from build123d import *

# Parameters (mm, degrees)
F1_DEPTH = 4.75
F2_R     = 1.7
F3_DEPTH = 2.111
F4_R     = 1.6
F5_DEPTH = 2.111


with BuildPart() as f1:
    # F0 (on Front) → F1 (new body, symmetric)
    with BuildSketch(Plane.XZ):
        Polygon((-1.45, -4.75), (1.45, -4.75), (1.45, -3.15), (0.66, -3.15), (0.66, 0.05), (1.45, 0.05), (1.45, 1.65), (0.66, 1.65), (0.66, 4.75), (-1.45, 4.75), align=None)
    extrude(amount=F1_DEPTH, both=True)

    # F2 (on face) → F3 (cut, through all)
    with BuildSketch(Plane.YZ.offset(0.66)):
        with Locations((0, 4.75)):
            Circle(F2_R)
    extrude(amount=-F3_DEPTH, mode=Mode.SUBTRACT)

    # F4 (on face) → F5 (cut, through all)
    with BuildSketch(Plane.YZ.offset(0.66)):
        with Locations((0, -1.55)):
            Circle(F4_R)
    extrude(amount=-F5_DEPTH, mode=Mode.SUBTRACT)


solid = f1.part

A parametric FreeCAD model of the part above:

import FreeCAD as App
import Part
import Sketcher
from FreeCAD import Vector

doc = App.newDocument("Part")
body = doc.addObject("PartDesign::Body", "Body")

sketch1 = body.newObject("Sketcher::SketchObject", "Sketch")
sketch1.AttachmentSupport = (doc.getObject("XZ_Plane"), [""])
sketch1.MapMode = "FlatFace"
sketch1.addGeometry(Part.LineSegment(Vector(-1.4, -4.8, 0), Vector(1.4, -4.8, 0)), False)
sketch1.addGeometry(Part.LineSegment(Vector(1.4, -4.8, 0), Vector(1.4, -3.1, 0)), False)
sketch1.addGeometry(Part.LineSegment(Vector(1.4, -3.1, 0), Vector(0.7, -3.1, 0)), False)
sketch1.addGeometry(Part.LineSegment(Vector(0.7, -3.1, 0), Vector(0.7, 0.1, 0)), False)
sketch1.addGeometry(Part.LineSegment(Vector(0.7, 0.1, 0), Vector(1.4, 0.1, 0)), False)
sketch1.addGeometry(Part.LineSegment(Vector(1.4, 0.1, 0), Vector(1.4, 1.6, 0)), False)
sketch1.addGeometry(Part.LineSegment(Vector(1.4, 1.6, 0), Vector(0.7, 1.6, 0)), False)
sketch1.addGeometry(Part.LineSegment(Vector(0.7, 1.6, 0), Vector(0.7, 4.8, 0)), False)
sketch1.addGeometry(Part.LineSegment(Vector(0.7, 4.8, 0), Vector(-1.4, 4.8, 0)), False)
sketch1.addGeometry(Part.LineSegment(Vector(-1.4, 4.8, 0), Vector(-1.4, -4.8, 0)), False)
sketch1.addConstraint(Sketcher.Constraint("Coincident", 0, 2, 1, 1))
sketch1.addConstraint(Sketcher.Constraint("Coincident", 1, 2, 2, 1))
sketch1.addConstraint(Sketcher.Constraint("Coincident", 2, 2, 3, 1))
sketch1.addConstraint(Sketcher.Constraint("Coincident", 3, 2, 4, 1))
sketch1.addConstraint(Sketcher.Constraint("Coincident", 4, 2, 5, 1))
sketch1.addConstraint(Sketcher.Constraint("Coincident", 5, 2, 6, 1))
sketch1.addConstraint(Sketcher.Constraint("Coincident", 6, 2, 7, 1))
sketch1.addConstraint(Sketcher.Constraint("Coincident", 7, 2, 8, 1))
sketch1.addConstraint(Sketcher.Constraint("Coincident", 8, 2, 9, 1))
sketch1.addConstraint(Sketcher.Constraint("Coincident", 9, 2, 0, 1))
sketch1.addConstraint(Sketcher.Constraint("Horizontal", 0))
sketch1.addConstraint(Sketcher.Constraint("Vertical", 1))
sketch1.addConstraint(Sketcher.Constraint("Horizontal", 2))
sketch1.addConstraint(Sketcher.Constraint("Vertical", 3))
sketch1.addConstraint(Sketcher.Constraint("Horizontal", 4))
sketch1.addConstraint(Sketcher.Constraint("Vertical", 5))
sketch1.addConstraint(Sketcher.Constraint("Horizontal", 6))
sketch1.addConstraint(Sketcher.Constraint("Vertical", 7))
sketch1.addConstraint(Sketcher.Constraint("Horizontal", 8))
sketch1.addConstraint(Sketcher.Constraint("Vertical", 9))
sketch1.addConstraint(Sketcher.Constraint("Symmetric", 0, 2, 8, 2, -1, 1))
sketch1.addConstraint(Sketcher.Constraint("Vertical", 1, 2, 4, 2))
sketch1.addConstraint(Sketcher.Constraint("Vertical", 3, 2, 6, 2))
sketch1.addConstraint(Sketcher.Constraint("Equal", 1, 5))
sketch1.addConstraint(Sketcher.Constraint("DistanceX", 0, 1, 0, 2, 2.9))
sketch1.addConstraint(Sketcher.Constraint("DistanceY", 1, 1, 1, 2, 1.6))
sketch1.addConstraint(Sketcher.Constraint("DistanceY", 3, 1, 3, 2, 3.2))
sketch1.addConstraint(Sketcher.Constraint("DistanceY", 7, 1, 7, 2, 3.1))
sketch1.addConstraint(Sketcher.Constraint("DistanceX", 2, 2, 2, 1, 0.79))
pad1 = body.newObject("PartDesign::Pad", "Pad")
pad1.Profile = sketch1
pad1.Length = 9.5
pad1.Midplane = True

sketch2 = body.newObject("Sketcher::SketchObject", "Sketch001")
sketch2.AttachmentSupport = (doc.getObject("YZ_Plane"), [""])
sketch2.MapMode = "FlatFace"
sketch2.AttachmentOffset = App.Placement(Vector(0, 0, 0.66), App.Rotation())
sketch2.addGeometry(Part.Circle(Vector(0, 4.8, 0), Vector(0, 0, 1), 1.7), False)
sketch2.addConstraint(Sketcher.Constraint("PointOnObject", 0, 3, -2))
sketch2.addConstraint(Sketcher.Constraint("Diameter", 0, 3.4))
sketch2.addConstraint(Sketcher.Constraint("DistanceY", -1, 1, 0, 3, 4.75))
pocket1 = body.newObject("PartDesign::Pocket", "Pocket")
pocket1.Profile = sketch2
pocket1.Type = "ThroughAll"

sketch3 = body.newObject("Sketcher::SketchObject", "Sketch002")
sketch3.AttachmentSupport = (doc.getObject("YZ_Plane"), [""])
sketch3.MapMode = "FlatFace"
sketch3.AttachmentOffset = App.Placement(Vector(0, 0, 0.66), App.Rotation())
sketch3.addGeometry(Part.Circle(Vector(0, -1.6, 0), Vector(0, 0, 1), 1.6), False)
sketch3.addConstraint(Sketcher.Constraint("PointOnObject", 0, 3, -2))
sketch3.addConstraint(Sketcher.Constraint("Diameter", 0, 3.2))
sketch3.addConstraint(Sketcher.Constraint("DistanceY", 0, 3, -1, 1, 1.55))
pocket2 = body.newObject("PartDesign::Pocket", "Pocket001")
pocket2.Profile = sketch3
pocket2.Type = "ThroughAll"

doc.recompute()
